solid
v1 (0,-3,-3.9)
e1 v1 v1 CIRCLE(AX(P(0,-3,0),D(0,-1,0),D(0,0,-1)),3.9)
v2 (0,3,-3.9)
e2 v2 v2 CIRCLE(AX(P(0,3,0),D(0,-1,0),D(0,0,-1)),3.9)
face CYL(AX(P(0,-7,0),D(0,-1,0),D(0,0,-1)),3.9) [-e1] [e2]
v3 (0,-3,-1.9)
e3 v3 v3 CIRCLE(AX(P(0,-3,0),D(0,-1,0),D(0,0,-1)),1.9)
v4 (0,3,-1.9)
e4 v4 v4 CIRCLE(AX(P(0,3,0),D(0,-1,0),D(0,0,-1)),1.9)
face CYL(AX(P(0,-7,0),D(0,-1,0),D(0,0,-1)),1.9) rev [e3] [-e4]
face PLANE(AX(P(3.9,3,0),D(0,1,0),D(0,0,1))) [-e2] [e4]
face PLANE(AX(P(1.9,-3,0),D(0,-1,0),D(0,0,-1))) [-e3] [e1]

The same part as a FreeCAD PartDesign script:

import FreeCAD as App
import Part
import Sketcher
from FreeCAD import Vector
Q = App.Units.Quantity

doc = App.newDocument("Part")
body = doc.addObject("PartDesign::Body", "Body")

# Sketch on XY plane
sketch1 = doc.addObject("Sketcher::SketchObject", "Sketch")
body.addObject(sketch1)
sketch1.AttachmentSupport = (doc.XY_Plane, [""])
sketch1.MapMode = "FlatFace"
sketch1.addGeometry(Part.LineSegment(Vector(1.9, 3, 0), Vector(1.9, -3, 0)), False)
sketch1.addGeometry(Part.LineSegment(Vector(1.9, -3, 0), Vector(3.9, -3, 0)), False)
sketch1.addGeometry(Part.LineSegment(Vector(3.9, -3, 0), Vector(3.9, 3, 0)), False)
sketch1.addGeometry(Part.LineSegment(Vector(3.9, 3, 0), Vector(1.9, 3, 0)), False)
sketch1.addConstraint(Sketcher.Constraint("Coincident", 0, 2, 1, 1))
sketch1.addConstraint(Sketcher.Constraint("Coincident", 1, 2, 2, 1))
sketch1.addConstraint(Sketcher.Constraint("Coincident", 2, 2, 3, 1))
sketch1.addConstraint(Sketcher.Constraint("Coincident", 3, 2, 0, 1))
sketch1.addConstraint(Sketcher.Constraint("Vertical", 0))
sketch1.addConstraint(Sketcher.Constraint("Horizontal", 1))
sketch1.addConstraint(Sketcher.Constraint("Vertical", 2))
sketch1.addConstraint(Sketcher.Constraint("Horizontal", 3))
sketch1.addConstraint(Sketcher.Constraint("DistanceX", 1, 1, 1, 2, Q("2 mm")))
sketch1.addConstraint(Sketcher.Constraint("DistanceY", 0, 2, 0, 1, Q("6 mm")))
sketch1.addConstraint(Sketcher.Constraint("DistanceY", 0, 2, -1, 1, Q("3 mm")))
sketch1.addConstraint(Sketcher.Constraint("DistanceX", -1, 1, 0, 2, Q("1.9 mm")))
revolution = doc.addObject("PartDesign::Revolution", "Revolution")
body.addObject(revolution)
revolution.Profile = sketch1
revolution.ReferenceAxis = (sketch1, ["V_Axis"])
revolution.Angle = 360

doc.recompute()
